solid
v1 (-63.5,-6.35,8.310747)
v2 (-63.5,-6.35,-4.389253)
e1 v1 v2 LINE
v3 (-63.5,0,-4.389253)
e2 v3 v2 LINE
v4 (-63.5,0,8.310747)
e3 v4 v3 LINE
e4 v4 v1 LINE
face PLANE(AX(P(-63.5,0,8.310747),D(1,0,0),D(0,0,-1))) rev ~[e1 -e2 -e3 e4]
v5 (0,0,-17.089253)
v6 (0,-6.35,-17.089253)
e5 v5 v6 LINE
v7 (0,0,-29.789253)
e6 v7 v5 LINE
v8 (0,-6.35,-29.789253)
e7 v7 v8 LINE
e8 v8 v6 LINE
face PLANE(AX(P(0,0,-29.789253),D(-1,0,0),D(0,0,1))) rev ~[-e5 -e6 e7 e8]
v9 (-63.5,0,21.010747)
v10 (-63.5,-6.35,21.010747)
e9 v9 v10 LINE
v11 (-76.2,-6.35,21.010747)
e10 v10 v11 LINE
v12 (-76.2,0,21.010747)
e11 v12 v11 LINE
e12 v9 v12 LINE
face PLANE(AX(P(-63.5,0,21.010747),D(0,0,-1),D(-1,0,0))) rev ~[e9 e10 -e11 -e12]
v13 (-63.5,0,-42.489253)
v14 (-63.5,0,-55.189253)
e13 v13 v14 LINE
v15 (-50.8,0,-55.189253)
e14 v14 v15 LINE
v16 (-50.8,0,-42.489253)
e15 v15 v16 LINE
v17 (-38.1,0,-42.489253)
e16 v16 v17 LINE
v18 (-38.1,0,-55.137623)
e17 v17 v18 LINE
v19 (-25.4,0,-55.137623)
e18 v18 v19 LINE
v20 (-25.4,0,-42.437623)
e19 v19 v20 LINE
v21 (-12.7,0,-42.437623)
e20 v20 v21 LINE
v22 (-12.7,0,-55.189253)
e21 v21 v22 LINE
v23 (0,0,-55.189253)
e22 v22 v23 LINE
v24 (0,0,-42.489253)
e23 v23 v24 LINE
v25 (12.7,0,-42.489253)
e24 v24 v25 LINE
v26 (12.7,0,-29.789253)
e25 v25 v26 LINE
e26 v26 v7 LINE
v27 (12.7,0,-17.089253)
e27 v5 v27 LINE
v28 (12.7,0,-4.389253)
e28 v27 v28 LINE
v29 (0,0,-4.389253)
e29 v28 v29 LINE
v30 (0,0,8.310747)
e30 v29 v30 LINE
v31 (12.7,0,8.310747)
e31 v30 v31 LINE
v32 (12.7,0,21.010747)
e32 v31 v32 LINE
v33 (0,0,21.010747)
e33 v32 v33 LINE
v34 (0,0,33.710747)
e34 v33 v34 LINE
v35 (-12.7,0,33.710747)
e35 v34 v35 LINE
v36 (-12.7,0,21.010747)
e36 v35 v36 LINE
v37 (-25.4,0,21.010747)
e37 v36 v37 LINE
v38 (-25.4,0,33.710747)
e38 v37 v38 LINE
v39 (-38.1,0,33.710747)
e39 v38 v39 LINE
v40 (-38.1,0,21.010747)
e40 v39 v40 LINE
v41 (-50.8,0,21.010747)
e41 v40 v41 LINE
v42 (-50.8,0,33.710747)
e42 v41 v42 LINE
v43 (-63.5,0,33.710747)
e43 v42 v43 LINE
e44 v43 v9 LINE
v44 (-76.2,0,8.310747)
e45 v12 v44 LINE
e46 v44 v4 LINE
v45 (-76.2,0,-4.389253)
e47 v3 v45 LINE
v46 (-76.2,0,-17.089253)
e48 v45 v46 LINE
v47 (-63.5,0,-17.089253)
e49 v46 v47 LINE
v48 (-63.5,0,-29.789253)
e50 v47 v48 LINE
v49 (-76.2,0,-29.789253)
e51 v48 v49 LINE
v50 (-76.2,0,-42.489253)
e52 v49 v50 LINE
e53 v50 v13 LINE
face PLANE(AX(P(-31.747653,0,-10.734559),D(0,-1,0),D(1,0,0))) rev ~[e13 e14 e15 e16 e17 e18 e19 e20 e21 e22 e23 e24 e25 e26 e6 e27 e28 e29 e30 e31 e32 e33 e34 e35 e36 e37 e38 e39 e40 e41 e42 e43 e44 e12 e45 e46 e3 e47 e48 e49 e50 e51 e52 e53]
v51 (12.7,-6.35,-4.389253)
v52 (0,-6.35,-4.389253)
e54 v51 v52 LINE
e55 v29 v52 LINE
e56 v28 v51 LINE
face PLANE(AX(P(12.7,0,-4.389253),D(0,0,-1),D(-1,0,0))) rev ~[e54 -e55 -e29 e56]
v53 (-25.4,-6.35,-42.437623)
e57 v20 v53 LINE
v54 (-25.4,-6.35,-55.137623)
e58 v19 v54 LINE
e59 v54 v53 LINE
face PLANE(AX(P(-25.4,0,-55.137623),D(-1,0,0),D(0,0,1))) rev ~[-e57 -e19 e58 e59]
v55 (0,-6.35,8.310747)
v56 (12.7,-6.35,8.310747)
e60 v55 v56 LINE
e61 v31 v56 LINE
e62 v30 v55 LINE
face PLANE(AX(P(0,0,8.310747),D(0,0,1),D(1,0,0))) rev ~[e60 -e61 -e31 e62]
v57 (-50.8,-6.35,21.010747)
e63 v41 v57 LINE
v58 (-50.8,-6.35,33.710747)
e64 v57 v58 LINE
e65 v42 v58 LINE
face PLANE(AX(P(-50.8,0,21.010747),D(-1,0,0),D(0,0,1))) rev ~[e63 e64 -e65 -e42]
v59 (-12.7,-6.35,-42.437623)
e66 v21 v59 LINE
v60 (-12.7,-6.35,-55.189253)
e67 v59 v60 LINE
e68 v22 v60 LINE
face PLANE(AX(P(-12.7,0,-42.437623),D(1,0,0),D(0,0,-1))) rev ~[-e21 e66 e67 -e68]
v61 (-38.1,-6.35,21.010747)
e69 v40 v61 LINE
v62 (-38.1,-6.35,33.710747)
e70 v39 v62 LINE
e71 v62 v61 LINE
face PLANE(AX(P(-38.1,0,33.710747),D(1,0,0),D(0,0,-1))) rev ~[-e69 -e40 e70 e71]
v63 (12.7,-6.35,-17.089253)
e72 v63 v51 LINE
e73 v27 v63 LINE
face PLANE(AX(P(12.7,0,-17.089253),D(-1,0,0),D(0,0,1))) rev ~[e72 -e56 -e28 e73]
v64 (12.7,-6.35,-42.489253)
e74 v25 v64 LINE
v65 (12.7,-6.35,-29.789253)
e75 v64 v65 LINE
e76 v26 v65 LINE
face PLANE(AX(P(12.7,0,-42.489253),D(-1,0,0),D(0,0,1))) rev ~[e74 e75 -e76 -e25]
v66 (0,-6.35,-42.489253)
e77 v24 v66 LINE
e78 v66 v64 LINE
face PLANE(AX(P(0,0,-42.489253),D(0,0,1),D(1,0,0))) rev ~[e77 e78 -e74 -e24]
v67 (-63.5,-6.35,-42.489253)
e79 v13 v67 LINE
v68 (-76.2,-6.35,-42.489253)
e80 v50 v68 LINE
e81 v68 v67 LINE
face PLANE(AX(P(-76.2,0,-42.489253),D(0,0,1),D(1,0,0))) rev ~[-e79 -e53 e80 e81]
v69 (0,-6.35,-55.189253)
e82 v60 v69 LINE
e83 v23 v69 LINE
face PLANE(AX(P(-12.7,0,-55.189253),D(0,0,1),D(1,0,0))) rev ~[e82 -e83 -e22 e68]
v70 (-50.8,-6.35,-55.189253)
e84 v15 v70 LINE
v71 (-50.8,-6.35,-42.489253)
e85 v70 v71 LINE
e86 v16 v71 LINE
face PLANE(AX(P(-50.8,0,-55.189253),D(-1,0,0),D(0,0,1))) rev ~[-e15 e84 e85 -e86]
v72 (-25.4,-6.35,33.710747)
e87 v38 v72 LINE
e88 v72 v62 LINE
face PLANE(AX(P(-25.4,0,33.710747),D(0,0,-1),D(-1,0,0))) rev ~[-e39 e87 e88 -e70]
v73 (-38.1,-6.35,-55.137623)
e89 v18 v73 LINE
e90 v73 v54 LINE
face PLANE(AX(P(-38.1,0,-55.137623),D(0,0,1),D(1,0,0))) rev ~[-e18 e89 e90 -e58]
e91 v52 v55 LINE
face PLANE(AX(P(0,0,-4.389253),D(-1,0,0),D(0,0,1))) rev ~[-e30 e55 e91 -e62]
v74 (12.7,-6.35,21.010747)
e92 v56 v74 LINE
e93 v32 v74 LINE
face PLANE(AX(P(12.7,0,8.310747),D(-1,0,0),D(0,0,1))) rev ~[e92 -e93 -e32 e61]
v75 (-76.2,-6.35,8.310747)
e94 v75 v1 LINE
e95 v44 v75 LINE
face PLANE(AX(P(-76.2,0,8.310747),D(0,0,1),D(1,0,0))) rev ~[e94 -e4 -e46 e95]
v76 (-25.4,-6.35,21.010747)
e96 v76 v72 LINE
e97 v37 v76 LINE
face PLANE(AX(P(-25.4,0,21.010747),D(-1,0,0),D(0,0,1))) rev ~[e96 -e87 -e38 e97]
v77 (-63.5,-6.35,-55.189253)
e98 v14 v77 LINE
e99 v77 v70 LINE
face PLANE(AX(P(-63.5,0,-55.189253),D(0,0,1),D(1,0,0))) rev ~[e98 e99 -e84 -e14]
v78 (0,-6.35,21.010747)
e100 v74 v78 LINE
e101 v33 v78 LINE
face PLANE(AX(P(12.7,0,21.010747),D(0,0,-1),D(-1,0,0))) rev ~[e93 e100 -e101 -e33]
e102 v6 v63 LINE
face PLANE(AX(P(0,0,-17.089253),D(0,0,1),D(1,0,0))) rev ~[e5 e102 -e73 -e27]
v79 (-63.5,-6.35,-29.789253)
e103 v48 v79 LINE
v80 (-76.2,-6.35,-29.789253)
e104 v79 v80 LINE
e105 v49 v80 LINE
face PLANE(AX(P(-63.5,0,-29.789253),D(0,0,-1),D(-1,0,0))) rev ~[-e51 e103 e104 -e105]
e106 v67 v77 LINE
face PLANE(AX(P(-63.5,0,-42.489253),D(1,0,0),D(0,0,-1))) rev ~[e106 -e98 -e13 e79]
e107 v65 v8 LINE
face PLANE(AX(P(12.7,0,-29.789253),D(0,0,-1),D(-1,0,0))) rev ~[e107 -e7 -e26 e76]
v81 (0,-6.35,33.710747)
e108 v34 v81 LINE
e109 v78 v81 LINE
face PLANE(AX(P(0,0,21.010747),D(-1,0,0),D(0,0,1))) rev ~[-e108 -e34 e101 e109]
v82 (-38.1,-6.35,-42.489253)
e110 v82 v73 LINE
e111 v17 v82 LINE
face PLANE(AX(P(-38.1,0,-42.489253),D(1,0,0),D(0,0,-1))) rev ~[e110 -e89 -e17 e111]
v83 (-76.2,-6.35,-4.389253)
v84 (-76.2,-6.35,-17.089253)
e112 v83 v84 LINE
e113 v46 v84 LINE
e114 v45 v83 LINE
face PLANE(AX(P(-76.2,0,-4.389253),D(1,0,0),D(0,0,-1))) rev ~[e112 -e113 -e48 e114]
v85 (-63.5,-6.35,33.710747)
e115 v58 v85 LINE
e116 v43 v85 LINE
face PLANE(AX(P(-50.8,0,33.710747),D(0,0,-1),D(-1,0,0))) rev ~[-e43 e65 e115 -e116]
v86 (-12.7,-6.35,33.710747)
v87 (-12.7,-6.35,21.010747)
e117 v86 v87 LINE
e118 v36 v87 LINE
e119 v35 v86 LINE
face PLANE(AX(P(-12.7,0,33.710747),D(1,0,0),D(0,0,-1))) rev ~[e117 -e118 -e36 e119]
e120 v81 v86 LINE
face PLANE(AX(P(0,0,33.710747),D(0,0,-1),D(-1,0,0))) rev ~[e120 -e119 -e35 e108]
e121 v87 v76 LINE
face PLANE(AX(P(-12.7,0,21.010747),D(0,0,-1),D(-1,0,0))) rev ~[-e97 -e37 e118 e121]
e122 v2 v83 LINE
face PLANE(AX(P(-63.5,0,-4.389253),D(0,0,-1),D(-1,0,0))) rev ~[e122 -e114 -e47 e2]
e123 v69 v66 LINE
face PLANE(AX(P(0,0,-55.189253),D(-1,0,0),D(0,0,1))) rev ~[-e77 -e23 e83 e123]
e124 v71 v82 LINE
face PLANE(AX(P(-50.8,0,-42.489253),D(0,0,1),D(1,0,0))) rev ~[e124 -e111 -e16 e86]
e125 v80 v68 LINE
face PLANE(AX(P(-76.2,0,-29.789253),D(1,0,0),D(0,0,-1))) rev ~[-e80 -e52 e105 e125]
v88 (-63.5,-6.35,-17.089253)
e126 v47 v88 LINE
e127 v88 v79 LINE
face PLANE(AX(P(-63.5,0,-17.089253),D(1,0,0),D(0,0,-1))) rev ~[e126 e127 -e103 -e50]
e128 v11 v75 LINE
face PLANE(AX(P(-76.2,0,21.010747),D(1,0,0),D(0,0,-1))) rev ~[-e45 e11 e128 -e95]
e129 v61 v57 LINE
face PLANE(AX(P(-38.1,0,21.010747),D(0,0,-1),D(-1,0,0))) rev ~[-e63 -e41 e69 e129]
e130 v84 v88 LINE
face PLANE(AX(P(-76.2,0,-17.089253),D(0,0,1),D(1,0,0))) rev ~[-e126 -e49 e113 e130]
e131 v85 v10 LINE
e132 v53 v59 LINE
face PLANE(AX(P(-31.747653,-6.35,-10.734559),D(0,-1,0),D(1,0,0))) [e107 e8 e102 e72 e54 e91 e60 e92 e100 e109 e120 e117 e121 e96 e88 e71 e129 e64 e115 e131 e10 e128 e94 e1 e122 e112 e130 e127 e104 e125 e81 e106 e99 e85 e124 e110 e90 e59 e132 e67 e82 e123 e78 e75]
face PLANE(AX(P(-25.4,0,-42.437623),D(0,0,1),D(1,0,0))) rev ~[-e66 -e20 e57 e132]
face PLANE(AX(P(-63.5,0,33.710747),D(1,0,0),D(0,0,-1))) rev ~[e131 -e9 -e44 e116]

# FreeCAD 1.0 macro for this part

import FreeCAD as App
import Part
import Sketcher
Q = App.Units.Quantity

doc = App.newDocument("Part")
body = doc.addObject("PartDesign::Body", "Body")

# Sketch on XZ plane
sketch1 = doc.addObject("Sketcher::SketchObject", "Sketch")
body.addObject(sketch1)
sketch1.AttachmentSupport = (doc.XZ_Plane, [""])
sketch1.MapMode = "FlatFace"
sketch1.addGeometry(Part.LineSegment(App.Vector(0, 21, 0), App.Vector(0, 34, 0)), False)
sketch1.addGeometry(Part.LineSegment(App.Vector(0, 34, 0), App.Vector(-13, 34, 0)), False)
sketch1.addGeometry(Part.LineSegment(App.Vector(-13, 34, 0), App.Vector(-13, 21, 0)), False)
sketch1.addGeometry(Part.LineSegment(App.Vector(-13, 21, 0), App.Vector(-25, 21, 0)), False)
sketch1.addGeometry(Part.LineSegment(App.Vector(-25, 21, 0), App.Vector(-25, 34, 0)), False)
sketch1.addGeometry(Part.LineSegment(App.Vector(-25, 34, 0), App.Vector(-38, 34, 0)), False)
sketch1.addGeometry(Part.LineSegment(App.Vector(-38, 34, 0), App.Vector(-38, 21, 0)), False)
sketch1.addGeometry(Part.LineSegment(App.Vector(-38, 21, 0), App.Vector(-51, 21, 0)), False)
sketch1.addGeometry(Part.LineSegment(App.Vector(-51, 21, 0), App.Vector(-51, 34, 0)), False)
sketch1.addGeometry(Part.LineSegment(App.Vector(-51, 34, 0), App.Vector(-64, 34, 0)), False)
sketch1.addGeometry(Part.LineSegment(App.Vector(-64, 34, 0), App.Vector(-64, 21, 0)), False)
sketch1.addGeometry(Part.LineSegment(App.Vector(-64, 21, 0), App.Vector(-76, 21, 0)), False)
sketch1.addGeometry(Part.LineSegment(App.Vector(-76, 21, 0), App.Vector(-76, 8, 0)), False)
sketch1.addGeometry(Part.LineSegment(App.Vector(-76, 8, 0), App.Vector(-64, 8, 0)), False)
sketch1.addGeometry(Part.LineSegment(App.Vector(-64, 8, 0), App.Vector(-64, -4, 0)), False)
sketch1.addGeometry(Part.LineSegment(App.Vector(-64, -4, 0), App.Vector(-76, -4, 0)), False)
sketch1.addGeometry(Part.LineSegment(App.Vector(-76, -4, 0), App.Vector(-76, -17, 0)), False)
sketch1.addGeometry(Part.LineSegment(App.Vector(-76, -17, 0), App.Vector(-64, -17, 0)), False)
sketch1.addGeometry(Part.LineSegment(App.Vector(-64, -17, 0), App.Vector(-64, -30, 0)), False)
sketch1.addGeometry(Part.LineSegment(App.Vector(-64, -30, 0), App.Vector(-76, -30, 0)), False)
sketch1.addGeometry(Part.LineSegment(App.Vector(-76, -30, 0), App.Vector(-76, -42, 0)), False)
sketch1.addGeometry(Part.LineSegment(App.Vector(-76, -42, 0), App.Vector(-64, -42, 0)), False)
sketch1.addGeometry(Part.LineSegment(App.Vector(-64, -42, 0), App.Vector(-64, -55, 0)), False)
sketch1.addGeometry(Part.LineSegment(App.Vector(-64, -55, 0), App.Vector(-51, -55, 0)), False)
sketch1.addGeometry(Part.LineSegment(App.Vector(-51, -55, 0), App.Vector(-51, -42, 0)), False)
sketch1.addGeometry(Part.LineSegment(App.Vector(-51, -42, 0), App.Vector(-38, -42, 0)), False)
sketch1.addGeometry(Part.LineSegment(App.Vector(-38, -42, 0), App.Vector(-38, -55, 0)), False)
sketch1.addGeometry(Part.LineSegment(App.Vector(-38, -55, 0), App.Vector(-25, -55, 0)), False)
sketch1.addGeometry(Part.LineSegment(App.Vector(-25, -55, 0), App.Vector(-25, -42, 0)), False)
sketch1.addGeometry(Part.LineSegment(App.Vector(-25, -42, 0), App.Vector(-13, -42, 0)), False)
sketch1.addGeometry(Part.LineSegment(App.Vector(-13, -42, 0), App.Vector(-13, -55, 0)), False)
sketch1.addGeometry(Part.LineSegment(App.Vector(-13, -55, 0), App.Vector(0, -55, 0)), False)
sketch1.addGeometry(Part.LineSegment(App.Vector(0, -55, 0), App.Vector(0, -42, 0)), False)
sketch1.addGeometry(Part.LineSegment(App.Vector(0, -42, 0), App.Vector(13, -42, 0)), False)
sketch1.addGeometry(Part.LineSegment(App.Vector(13, -42, 0), App.Vector(13, -30, 0)), False)
sketch1.addGeometry(Part.LineSegment(App.Vector(13, -30, 0), App.Vector(0, -30, 0)), False)
sketch1.addGeometry(Part.LineSegment(App.Vector(0, -30, 0), App.Vector(0, -17, 0)), False)
sketch1.addGeometry(Part.LineSegment(App.Vector(0, -17, 0), App.Vector(13, -17, 0)), False)
sketch1.addGeometry(Part.LineSegment(App.Vector(13, -17, 0), App.Vector(13, -4, 0)), False)
sketch1.addGeometry(Part.LineSegment(App.Vector(13, -4, 0), App.Vector(0, -4, 0)), False)
sketch1.addGeometry(Part.LineSegment(App.Vector(0, -4, 0), App.Vector(0, 8, 0)), False)
sketch1.addGeometry(Part.LineSegment(App.Vector(0, 8, 0), App.Vector(13, 8, 0)), False)
sketch1.addGeometry(Part.LineSegment(App.Vector(13, 8, 0), App.Vector(13, 21, 0)), False)
sketch1.addGeometry(Part.LineSegment(App.Vector(13, 21, 0), App.Vector(0, 21, 0)), False)
sketch1.addConstraint(Sketcher.Constraint("Coincident", 0, 2, 1, 1))
sketch1.addConstraint(Sketcher.Constraint("Coincident", 1, 2, 2, 1))
sketch1.addConstraint(Sketcher.Constraint("Coincident", 2, 2, 3, 1))
sketch1.addConstraint(Sketcher.Constraint("Coincident", 3, 2, 4, 1))
sketch1.addConstraint(Sketcher.Constraint("Coincident", 4, 2, 5, 1))
sketch1.addConstraint(Sketcher.Constraint("Coincident", 5, 2, 6, 1))
sketch1.addConstraint(Sketcher.Constraint("Coincident", 6, 2, 7, 1))
sketch1.addConstraint(Sketcher.Constraint("Coincident", 7, 2, 8, 1))
sketch1.addConstraint(Sketcher.Constraint("Coincident", 8, 2, 9, 1))
sketch1.addConstraint(Sketcher.Constraint("Coincident", 9, 2, 10, 1))
sketch1.addConstraint(Sketcher.Constraint("Coincident", 10, 2, 11, 1))
sketch1.addConstraint(Sketcher.Constraint("Coincident", 11, 2, 12, 1))
sketch1.addConstraint(Sketcher.Constraint("Coincident", 12, 2, 13, 1))
sketch1.addConstraint(Sketcher.Constraint("Coincident", 13, 2, 14, 1))
sketch1.addConstraint(Sketcher.Constraint("Coincident", 14, 2, 15, 1))
sketch1.addConstraint(Sketcher.Constraint("Coincident", 15, 2, 16, 1))
sketch1.addConstraint(Sketcher.Constraint("Coincident", 16, 2, 17, 1))
sketch1.addConstraint(Sketcher.Constraint("Coincident", 17, 2, 18, 1))
sketch1.addConstraint(Sketcher.Constraint("Coincident", 18, 2, 19, 1))
sketch1.addConstraint(Sketcher.Constraint("Coincident", 19, 2, 20, 1))
sketch1.addConstraint(Sketcher.Constraint("Coincident", 20, 2, 21, 1))
sketch1.addConstraint(Sketcher.Constraint("Coincident", 21, 2, 22, 1))
sketch1.addConstraint(Sketcher.Constraint("Coincident", 22, 2, 23, 1))
sketch1.addConstraint(Sketcher.Constraint("Coincident", 23, 2, 24, 1))
sketch1.addConstraint(Sketcher.Constraint("Coincident", 24, 2, 25, 1))
sketch1.addConstraint(Sketcher.Constraint("Coincident", 25, 2, 26, 1))
sketch1.addConstraint(Sketcher.Constraint("Coincident", 26, 2, 27, 1))
sketch1.addConstraint(Sketcher.Constraint("Coincident", 27, 2, 28, 1))
sketch1.addConstraint(Sketcher.Constraint("Coincident", 28, 2, 29, 1))
sketch1.addConstraint(Sketcher.Constraint("Coincident", 29, 2, 30, 1))
sketch1.addConstraint(Sketcher.Constraint("Coincident", 30, 2, 31, 1))
sketch1.addConstraint(Sketcher.Constraint("Coincident", 31, 2, 32, 1))
sketch1.addConstraint(Sketcher.Constraint("Coincident", 32, 2, 33, 1))
sketch1.addConstraint(Sketcher.Constraint("Coincident", 33, 2, 34, 1))
sketch1.addConstraint(Sketcher.Constraint("Coincident", 34, 2, 35, 1))
sketch1.addConstraint(Sketcher.Constraint("Coincident", 35, 2, 36, 1))
sketch1.addConstraint(Sketcher.Constraint("Coincident", 36, 2, 37, 1))
sketch1.addConstraint(Sketcher.Constraint("Coincident", 37, 2, 38, 1))
sketch1.addConstraint(Sketcher.Constraint("Coincident", 38, 2, 39, 1))
sketch1.addConstraint(Sketcher.Constraint("Coincident", 39, 2, 40, 1))
sketch1.addConstraint(Sketcher.Constraint("Coincident", 40, 2, 41, 1))
sketch1.addConstraint(Sketcher.Constraint("Coincident", 41, 2, 42, 1))
sketch1.addConstraint(Sketcher.Constraint("Coincident", 42, 2, 43, 1))
sketch1.addConstraint(Sketcher.Constraint("Coincident", 43, 2, 0, 1))
sketch1.addConstraint(Sketcher.Constraint("Vertical", 0))
sketch1.addConstraint(Sketcher.Constraint("Horizontal", 1))
sketch1.addConstraint(Sketcher.Constraint("Vertical", 2))
sketch1.addConstraint(Sketcher.Constraint("Horizontal", 3))
sketch1.addConstraint(Sketcher.Constraint("Vertical", 4))
sketch1.addConstraint(Sketcher.Constraint("Horizontal", 5))
sketch1.addConstraint(Sketcher.Constraint("Vertical", 6))
sketch1.addConstraint(Sketcher.Constraint("Horizontal", 7))
sketch1.addConstraint(Sketcher.Constraint("Vertical", 8))
sketch1.addConstraint(Sketcher.Constraint("Horizontal", 9))
sketch1.addConstraint(Sketcher.Constraint("Vertical", 10))
sketch1.addConstraint(Sketcher.Constraint("Horizontal", 11))
sketch1.addConstraint(Sketcher.Constraint("Vertical", 12))
sketch1.addConstraint(Sketcher.Constraint("Horizontal", 13))
sketch1.addConstraint(Sketcher.Constraint("Vertical", 14))
sketch1.addConstraint(Sketcher.Constraint("Horizontal", 15))
sketch1.addConstraint(Sketcher.Constraint("Vertical", 16))
sketch1.addConstraint(Sketcher.Constraint("Horizontal", 17))
sketch1.addConstraint(Sketcher.Constraint("Vertical", 18))
sketch1.addConstraint(Sketcher.Constraint("Horizontal", 19))
sketch1.addConstraint(Sketcher.Constraint("Vertical", 20))
sketch1.addConstraint(Sketcher.Constraint("Horizontal", 21))
sketch1.addConstraint(Sketcher.Constraint("Vertical", 22))
sketch1.addConstraint(Sketcher.Constraint("Horizontal", 23))
sketch1.addConstraint(Sketcher.Constraint("Vertical", 24))
sketch1.addConstraint(Sketcher.Constraint("Horizontal", 25))
sketch1.addConstraint(Sketcher.Constraint("Vertical", 26))
sketch1.addConstraint(Sketcher.Constraint("Horizontal", 27))
sketch1.addConstraint(Sketcher.Constraint("Vertical", 28))
sketch1.addConstraint(Sketcher.Constraint("Horizontal", 29))
sketch1.addConstraint(Sketcher.Constraint("Vertical", 30))
sketch1.addConstraint(Sketcher.Constraint("Horizontal", 31))
sketch1.addConstraint(Sketcher.Constraint("Vertical", 32))
sketch1.addConstraint(Sketcher.Constraint("Horizontal", 33))
sketch1.addConstraint(Sketcher.Constraint("Vertical", 34))
sketch1.addConstraint(Sketcher.Constraint("Horizontal", 35))
sketch1.addConstraint(Sketcher.Constraint("Vertical", 36))
sketch1.addConstraint(Sketcher.Constraint("Horizontal", 37))
sketch1.addConstraint(Sketcher.Constraint("Vertical", 38))
sketch1.addConstraint(Sketcher.Constraint("Horizontal", 39))
sketch1.addConstraint(Sketcher.Constraint("Vertical", 40))
sketch1.addConstraint(Sketcher.Constraint("Horizontal", 41))
sketch1.addConstraint(Sketcher.Constraint("Vertical", 42))
sketch1.addConstraint(Sketcher.Constraint("Horizontal", 43))
sketch1.addConstraint(Sketcher.Constraint("Symmetric", 2, 2, 42, 2, -2))
sketch1.addConstraint(Sketcher.Constraint("PointOnObject", 0, 2, -2))
sketch1.addConstraint(Sketcher.Constraint("PointOnObject", 31, 2, -2))
sketch1.addConstraint(Sketcher.Constraint("PointOnObject", 35, 2, -2))
sketch1.addConstraint(Sketcher.Constraint("PointOnObject", 39, 2, -2))
sketch1.addConstraint(Sketcher.Constraint("Horizontal", 1, 2, 4, 2))
sketch1.addConstraint(Sketcher.Constraint("Horizontal", 3, 2, 6, 2))
sketch1.addConstraint(Sketcher.Constraint("Horizontal", 5, 2, 8, 2))
sketch1.addConstraint(Sketcher.Constraint("Horizontal", 7, 2, 10, 2))
sketch1.addConstraint(Sketcher.Constraint("Horizontal", 21, 2, 24, 2))
sketch1.addConstraint(Sketcher.Constraint("Horizontal", 23, 2, 30, 2))
sketch1.addConstraint(Sketcher.Constraint("Horizontal", 25, 2, 32, 2))
sketch1.addConstraint(Sketcher.Constraint("Horizontal", 19, 2, 34, 2))
sketch1.addConstraint(Sketcher.Constraint("Horizontal", 17, 2, 36, 2))
sketch1.addConstraint(Sketcher.Constraint("Horizontal", 15, 2, 38, 2))
sketch1.addConstraint(Sketcher.Constraint("Horizontal", 13, 2, 40, 2))
sketch1.addConstraint(Sketcher.Constraint("Vertical", 10, 2, 13, 2))
sketch1.addConstraint(Sketcher.Constraint("Vertical", 12, 2, 15, 2))
sketch1.addConstraint(Sketcher.Constraint("Vertical", 14, 2, 17, 2))
sketch1.addConstraint(Sketcher.Constraint("Vertical", 16, 2, 19, 2))
sketch1.addConstraint(Sketcher.Constraint("Vertical", 18, 2, 21, 2))
sketch1.addConstraint(Sketcher.Constraint("Vertical", 8, 2, 23, 2))
sketch1.addConstraint(Sketcher.Constraint("Vertical", 6, 2, 25, 2))
sketch1.addConstraint(Sketcher.Constraint("Vertical", 4, 2, 27, 2))
sketch1.addConstraint(Sketcher.Constraint("Vertical", 2, 2, 29, 2))
sketch1.addConstraint(Sketcher.Constraint("Vertical", 34, 2, 37, 2))
sketch1.addConstraint(Sketcher.Constraint("Vertical", 38, 2, 41, 2))
sketch1.addConstraint(Sketcher.Constraint("Equal", 1, 3))
sketch1.addConstraint(Sketcher.Constraint("Equal", 3, 5))
sketch1.addConstraint(Sketcher.Constraint("Equal", 5, 7))
sketch1.addConstraint(Sketcher.Constraint("Equal", 7, 9))
sketch1.addConstraint(Sketcher.Constraint("Equal", 9, 11))
sketch1.addConstraint(Sketcher.Constraint("Equal", 43, 0))
sketch1.addConstraint(Sketcher.Constraint("Equal", 10, 12))
sketch1.addConstraint(Sketcher.Constraint("Equal", 12, 14))
sketch1.addConstraint(Sketcher.Constraint("Equal", 14, 16))
sketch1.addConstraint(Sketcher.Constraint("Equal", 16, 18))
sketch1.addConstraint(Sketcher.Constraint("Equal", 18, 20))
sketch1.addConstraint(Sketcher.Constraint("Equal", 20, 22))
sketch1.addConstraint(Sketcher.Constraint("Equal", 24, 28))
sketch1.addConstraint(Sketcher.Constraint("DistanceX", 1, 2, 1, 1, Q("0.5 in")))
sketch1.addConstraint(Sketcher.Constraint("DistanceY", 26, 2, 26, 1, 12.64837))
sketch1.addConstraint(Sketcher.Constraint("DistanceY", -1, 1, 0, 2, 33.710747))
pad1 = doc.addObject("PartDesign::Pad", "Pad")
body.addObject(pad1)
pad1.Profile = sketch1
pad1.Length = Q("0.25 in")

doc.recompute()
